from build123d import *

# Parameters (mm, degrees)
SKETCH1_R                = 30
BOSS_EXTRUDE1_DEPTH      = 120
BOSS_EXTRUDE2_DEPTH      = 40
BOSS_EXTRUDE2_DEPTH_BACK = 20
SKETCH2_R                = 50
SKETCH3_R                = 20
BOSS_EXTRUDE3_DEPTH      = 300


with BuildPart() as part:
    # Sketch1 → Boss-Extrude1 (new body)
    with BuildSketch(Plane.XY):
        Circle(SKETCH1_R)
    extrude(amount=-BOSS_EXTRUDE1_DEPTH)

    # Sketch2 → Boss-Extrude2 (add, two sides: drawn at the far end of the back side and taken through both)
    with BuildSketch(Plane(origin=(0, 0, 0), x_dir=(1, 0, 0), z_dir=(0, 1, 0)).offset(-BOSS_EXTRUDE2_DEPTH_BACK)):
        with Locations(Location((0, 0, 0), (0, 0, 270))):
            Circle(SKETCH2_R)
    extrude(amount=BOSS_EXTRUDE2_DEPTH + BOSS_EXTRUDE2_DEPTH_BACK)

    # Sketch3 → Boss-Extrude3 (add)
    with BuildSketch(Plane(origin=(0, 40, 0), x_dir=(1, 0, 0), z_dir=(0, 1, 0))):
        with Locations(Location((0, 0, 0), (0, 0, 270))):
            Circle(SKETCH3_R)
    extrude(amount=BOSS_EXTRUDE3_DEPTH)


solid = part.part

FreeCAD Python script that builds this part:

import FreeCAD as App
import Part
import Sketcher
Q = App.Units.Quantity

doc = App.newDocument("Part")
body = doc.addObject("PartDesign::Body", "Body")

# Sketch on XY plane
sketch1 = body.newObject("Sketcher::SketchObject", "Sketch")
sketch1.AttachmentSupport = (doc.getObject("XY_Plane"), [""])
sketch1.MapMode = "FlatFace"
sketch1.addGeometry(Part.Circle(App.Vector(0, 0, 0), App.Vector(0, 0, 1), 30), False)
sketch1.addConstraint(Sketcher.Constraint("Coincident", 0, 3, -1, 1))
sketch1.addConstraint(Sketcher.Constraint("Diameter", 0, Q("60 mm")))
pad1 = body.newObject("PartDesign::Pad", "Pad")
pad1.Profile = sketch1
pad1.Length = 120
pad1.Reversed = True

# Sketch on XZ plane
sketch2 = body.newObject("Sketcher::SketchObject", "Sketch001")
sketch2.AttachmentSupport = (doc.getObject("XZ_Plane"), [""])
sketch2.MapMode = "FlatFace"
sketch2.addGeometry(Part.Circle(App.Vector(0, 0, 0), App.Vector(0, 0, 1), 50), False)
sketch2.addConstraint(Sketcher.Constraint("Coincident", 0, 3, -1, 1))
sketch2.addConstraint(Sketcher.Constraint("Diameter", 0, Q("100 mm")))
pad2 = body.newObject("PartDesign::Pad", "Pad001")
pad2.Profile = sketch2
pad2.Type = "TwoLengths"
pad2.Length = 40
pad2.Length2 = 20
pad2.Reversed = True

# Sketch on XZ plane
sketch3 = body.newObject("Sketcher::SketchObject", "Sketch002")
sketch3.AttachmentSupport = (doc.getObject("XZ_Plane"), [""])
sketch3.MapMode = "FlatFace"
sketch3.AttachmentOffset = App.Placement(App.Vector(0, 0, -40), App.Rotation())
sketch3.addGeometry(Part.Circle(App.Vector(0, 0, 0), App.Vector(0, 0, 1), 20), False)
sketch3.addConstraint(Sketcher.Constraint("Coincident", 0, 3, -1, 1))
sketch3.addConstraint(Sketcher.Constraint("Diameter", 0, Q("40 mm")))
pad3 = body.newObject("PartDesign::Pad", "Pad002")
pad3.Profile = sketch3
pad3.Length = 300
pad3.Reversed = True

doc.recompute()
